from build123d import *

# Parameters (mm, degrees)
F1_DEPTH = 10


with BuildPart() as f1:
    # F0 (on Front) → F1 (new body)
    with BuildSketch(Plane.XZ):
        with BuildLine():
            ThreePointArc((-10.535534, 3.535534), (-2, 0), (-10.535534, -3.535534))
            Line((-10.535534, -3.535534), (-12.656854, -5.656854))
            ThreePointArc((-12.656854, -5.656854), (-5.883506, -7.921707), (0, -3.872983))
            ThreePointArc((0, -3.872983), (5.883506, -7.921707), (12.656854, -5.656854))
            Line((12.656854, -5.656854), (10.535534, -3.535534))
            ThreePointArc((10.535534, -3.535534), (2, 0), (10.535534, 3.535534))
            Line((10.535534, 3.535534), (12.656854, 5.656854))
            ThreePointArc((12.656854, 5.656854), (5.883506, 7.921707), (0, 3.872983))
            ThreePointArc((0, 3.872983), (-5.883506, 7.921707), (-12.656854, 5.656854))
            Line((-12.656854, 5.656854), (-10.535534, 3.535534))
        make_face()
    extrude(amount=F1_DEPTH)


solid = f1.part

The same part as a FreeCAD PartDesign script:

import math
import FreeCAD as App
import Part
import Sketcher

V = App.Vector
Q = App.Units.Quantity

doc = App.newDocument("Part")
params = doc.addObject("Spreadsheet::Sheet", "Params")
for row, (alias, value) in enumerate([
    ("sketch1_radius", "5 mm"),
    ("sketch1_radius2", "7.999999 mm"),
    ("pad1_length", "10 mm"),
], start=1):
    params.set(f"A{row}", alias)
    params.set(f"B{row}", "=" + value)
    params.setAlias(f"B{row}", alias)

body = doc.addObject("PartDesign::Body", "Body")

# Sketch on XZ plane
sketch1 = doc.addObject("Sketcher::SketchObject", "Sketch")
body.addObject(sketch1)
sketch1.AttachmentSupport = (doc.XZ_Plane, [""])
sketch1.MapMode = "FlatFace"
sketch1.addGeometry([
    Part.ArcOfCircle(Part.Circle(V(-7, 0, 0), V(0, 0, 1), 5), math.radians(-135), math.radians(135)),  # 0
    Part.LineSegment(V(-10.5, -3.5, 0), V(-12.7, -5.7, 0)),  # 1
    Part.ArcOfCircle(Part.Circle(V(-7, 0, 0), V(0, 0, 1), 8), math.radians(-135), math.radians(-29)),  # 2
    Part.ArcOfCircle(Part.Circle(V(7, 0, 0), V(0, 0, 1), 8), math.radians(-151), math.radians(-45)),  # 3
    Part.LineSegment(V(12.7, -5.7, 0), V(10.5, -3.5, 0)),  # 4
    Part.ArcOfCircle(Part.Circle(V(7, 0, 0), V(0, 0, 1), 5), math.radians(45), math.radians(315)),  # 5
    Part.LineSegment(V(10.5, 3.5, 0), V(12.7, 5.7, 0)),  # 6
    Part.ArcOfCircle(Part.Circle(V(7, 0, 0), V(0, 0, 1), 8), math.radians(45), math.radians(151)),  # 7
    Part.ArcOfCircle(Part.Circle(V(-7, 0, 0), V(0, 0, 1), 8), math.radians(29), math.radians(135)),  # 8
    Part.LineSegment(V(-12.7, 5.7, 0), V(-10.5, 3.5, 0)),  # 9
], False)
sketch1.addConstraint([
    Sketcher.Constraint("Coincident", 0, 1, 1, 1),
    Sketcher.Constraint("Coincident", 1, 2, 2, 1),
    Sketcher.Constraint("Coincident", 2, 2, 3, 1),
    Sketcher.Constraint("Coincident", 3, 2, 4, 1),
    Sketcher.Constraint("Coincident", 4, 2, 5, 2),
    Sketcher.Constraint("Coincident", 5, 1, 6, 1),
    Sketcher.Constraint("Coincident", 6, 2, 7, 1),
    Sketcher.Constraint("Coincident", 7, 2, 8, 1),
    Sketcher.Constraint("Coincident", 8, 2, 9, 1),
    Sketcher.Constraint("Coincident", 9, 2, 0, 2),
    Sketcher.Constraint("Coincident", 2, 3, 0, 3),
    Sketcher.Constraint("Coincident", 5, 3, 3, 3),
    Sketcher.Constraint("Coincident", 7, 3, 3, 3),
    Sketcher.Constraint("Coincident", 8, 3, 0, 3),
    Sketcher.Constraint("Equal", 2, 3),
    Sketcher.Constraint("Equal", 0, 5),
    Sketcher.Constraint("Equal", 3, 7),
    Sketcher.Constraint("Equal", 7, 8),
    Sketcher.Constraint("Symmetric", 0, 3, 3, 3, -1, 1),
    Sketcher.Constraint("Symmetric", 1, 2, 3, 2, -2),
    Sketcher.Constraint("Perpendicular", 1, 4),
    Sketcher.Constraint("Perpendicular", 4, 6),
    Sketcher.Constraint("Perpendicular", 6, 9),
    Sketcher.Constraint("Horizontal", 0, 1, 4, 2),
    Sketcher.Constraint("Horizontal", 6, 2, 8, 2),
    Sketcher.Constraint("Vertical", 4, 2, 5, 1),
    Sketcher.Constraint("Radius", 0, Q("5 mm")),
    Sketcher.Constraint("Radius", 2, Q("7.999999 mm")),
    Sketcher.Constraint("DistanceX", 0, 3, -1, 1, Q("7 mm")),
    Sketcher.Constraint("DistanceY", 3, 2, 2, 2, Q("1.783871 mm")),
])
sketch1.setExpression("Constraints[26]", "Params.sketch1_radius")
sketch1.setExpression("Constraints[27]", "Params.sketch1_radius2")
pad1 = doc.addObject("PartDesign::Pad", "Pad")
body.addObject(pad1)
pad1.Profile = sketch1
pad1.setExpression("Length", "Params.pad1_length")

doc.recompute()
